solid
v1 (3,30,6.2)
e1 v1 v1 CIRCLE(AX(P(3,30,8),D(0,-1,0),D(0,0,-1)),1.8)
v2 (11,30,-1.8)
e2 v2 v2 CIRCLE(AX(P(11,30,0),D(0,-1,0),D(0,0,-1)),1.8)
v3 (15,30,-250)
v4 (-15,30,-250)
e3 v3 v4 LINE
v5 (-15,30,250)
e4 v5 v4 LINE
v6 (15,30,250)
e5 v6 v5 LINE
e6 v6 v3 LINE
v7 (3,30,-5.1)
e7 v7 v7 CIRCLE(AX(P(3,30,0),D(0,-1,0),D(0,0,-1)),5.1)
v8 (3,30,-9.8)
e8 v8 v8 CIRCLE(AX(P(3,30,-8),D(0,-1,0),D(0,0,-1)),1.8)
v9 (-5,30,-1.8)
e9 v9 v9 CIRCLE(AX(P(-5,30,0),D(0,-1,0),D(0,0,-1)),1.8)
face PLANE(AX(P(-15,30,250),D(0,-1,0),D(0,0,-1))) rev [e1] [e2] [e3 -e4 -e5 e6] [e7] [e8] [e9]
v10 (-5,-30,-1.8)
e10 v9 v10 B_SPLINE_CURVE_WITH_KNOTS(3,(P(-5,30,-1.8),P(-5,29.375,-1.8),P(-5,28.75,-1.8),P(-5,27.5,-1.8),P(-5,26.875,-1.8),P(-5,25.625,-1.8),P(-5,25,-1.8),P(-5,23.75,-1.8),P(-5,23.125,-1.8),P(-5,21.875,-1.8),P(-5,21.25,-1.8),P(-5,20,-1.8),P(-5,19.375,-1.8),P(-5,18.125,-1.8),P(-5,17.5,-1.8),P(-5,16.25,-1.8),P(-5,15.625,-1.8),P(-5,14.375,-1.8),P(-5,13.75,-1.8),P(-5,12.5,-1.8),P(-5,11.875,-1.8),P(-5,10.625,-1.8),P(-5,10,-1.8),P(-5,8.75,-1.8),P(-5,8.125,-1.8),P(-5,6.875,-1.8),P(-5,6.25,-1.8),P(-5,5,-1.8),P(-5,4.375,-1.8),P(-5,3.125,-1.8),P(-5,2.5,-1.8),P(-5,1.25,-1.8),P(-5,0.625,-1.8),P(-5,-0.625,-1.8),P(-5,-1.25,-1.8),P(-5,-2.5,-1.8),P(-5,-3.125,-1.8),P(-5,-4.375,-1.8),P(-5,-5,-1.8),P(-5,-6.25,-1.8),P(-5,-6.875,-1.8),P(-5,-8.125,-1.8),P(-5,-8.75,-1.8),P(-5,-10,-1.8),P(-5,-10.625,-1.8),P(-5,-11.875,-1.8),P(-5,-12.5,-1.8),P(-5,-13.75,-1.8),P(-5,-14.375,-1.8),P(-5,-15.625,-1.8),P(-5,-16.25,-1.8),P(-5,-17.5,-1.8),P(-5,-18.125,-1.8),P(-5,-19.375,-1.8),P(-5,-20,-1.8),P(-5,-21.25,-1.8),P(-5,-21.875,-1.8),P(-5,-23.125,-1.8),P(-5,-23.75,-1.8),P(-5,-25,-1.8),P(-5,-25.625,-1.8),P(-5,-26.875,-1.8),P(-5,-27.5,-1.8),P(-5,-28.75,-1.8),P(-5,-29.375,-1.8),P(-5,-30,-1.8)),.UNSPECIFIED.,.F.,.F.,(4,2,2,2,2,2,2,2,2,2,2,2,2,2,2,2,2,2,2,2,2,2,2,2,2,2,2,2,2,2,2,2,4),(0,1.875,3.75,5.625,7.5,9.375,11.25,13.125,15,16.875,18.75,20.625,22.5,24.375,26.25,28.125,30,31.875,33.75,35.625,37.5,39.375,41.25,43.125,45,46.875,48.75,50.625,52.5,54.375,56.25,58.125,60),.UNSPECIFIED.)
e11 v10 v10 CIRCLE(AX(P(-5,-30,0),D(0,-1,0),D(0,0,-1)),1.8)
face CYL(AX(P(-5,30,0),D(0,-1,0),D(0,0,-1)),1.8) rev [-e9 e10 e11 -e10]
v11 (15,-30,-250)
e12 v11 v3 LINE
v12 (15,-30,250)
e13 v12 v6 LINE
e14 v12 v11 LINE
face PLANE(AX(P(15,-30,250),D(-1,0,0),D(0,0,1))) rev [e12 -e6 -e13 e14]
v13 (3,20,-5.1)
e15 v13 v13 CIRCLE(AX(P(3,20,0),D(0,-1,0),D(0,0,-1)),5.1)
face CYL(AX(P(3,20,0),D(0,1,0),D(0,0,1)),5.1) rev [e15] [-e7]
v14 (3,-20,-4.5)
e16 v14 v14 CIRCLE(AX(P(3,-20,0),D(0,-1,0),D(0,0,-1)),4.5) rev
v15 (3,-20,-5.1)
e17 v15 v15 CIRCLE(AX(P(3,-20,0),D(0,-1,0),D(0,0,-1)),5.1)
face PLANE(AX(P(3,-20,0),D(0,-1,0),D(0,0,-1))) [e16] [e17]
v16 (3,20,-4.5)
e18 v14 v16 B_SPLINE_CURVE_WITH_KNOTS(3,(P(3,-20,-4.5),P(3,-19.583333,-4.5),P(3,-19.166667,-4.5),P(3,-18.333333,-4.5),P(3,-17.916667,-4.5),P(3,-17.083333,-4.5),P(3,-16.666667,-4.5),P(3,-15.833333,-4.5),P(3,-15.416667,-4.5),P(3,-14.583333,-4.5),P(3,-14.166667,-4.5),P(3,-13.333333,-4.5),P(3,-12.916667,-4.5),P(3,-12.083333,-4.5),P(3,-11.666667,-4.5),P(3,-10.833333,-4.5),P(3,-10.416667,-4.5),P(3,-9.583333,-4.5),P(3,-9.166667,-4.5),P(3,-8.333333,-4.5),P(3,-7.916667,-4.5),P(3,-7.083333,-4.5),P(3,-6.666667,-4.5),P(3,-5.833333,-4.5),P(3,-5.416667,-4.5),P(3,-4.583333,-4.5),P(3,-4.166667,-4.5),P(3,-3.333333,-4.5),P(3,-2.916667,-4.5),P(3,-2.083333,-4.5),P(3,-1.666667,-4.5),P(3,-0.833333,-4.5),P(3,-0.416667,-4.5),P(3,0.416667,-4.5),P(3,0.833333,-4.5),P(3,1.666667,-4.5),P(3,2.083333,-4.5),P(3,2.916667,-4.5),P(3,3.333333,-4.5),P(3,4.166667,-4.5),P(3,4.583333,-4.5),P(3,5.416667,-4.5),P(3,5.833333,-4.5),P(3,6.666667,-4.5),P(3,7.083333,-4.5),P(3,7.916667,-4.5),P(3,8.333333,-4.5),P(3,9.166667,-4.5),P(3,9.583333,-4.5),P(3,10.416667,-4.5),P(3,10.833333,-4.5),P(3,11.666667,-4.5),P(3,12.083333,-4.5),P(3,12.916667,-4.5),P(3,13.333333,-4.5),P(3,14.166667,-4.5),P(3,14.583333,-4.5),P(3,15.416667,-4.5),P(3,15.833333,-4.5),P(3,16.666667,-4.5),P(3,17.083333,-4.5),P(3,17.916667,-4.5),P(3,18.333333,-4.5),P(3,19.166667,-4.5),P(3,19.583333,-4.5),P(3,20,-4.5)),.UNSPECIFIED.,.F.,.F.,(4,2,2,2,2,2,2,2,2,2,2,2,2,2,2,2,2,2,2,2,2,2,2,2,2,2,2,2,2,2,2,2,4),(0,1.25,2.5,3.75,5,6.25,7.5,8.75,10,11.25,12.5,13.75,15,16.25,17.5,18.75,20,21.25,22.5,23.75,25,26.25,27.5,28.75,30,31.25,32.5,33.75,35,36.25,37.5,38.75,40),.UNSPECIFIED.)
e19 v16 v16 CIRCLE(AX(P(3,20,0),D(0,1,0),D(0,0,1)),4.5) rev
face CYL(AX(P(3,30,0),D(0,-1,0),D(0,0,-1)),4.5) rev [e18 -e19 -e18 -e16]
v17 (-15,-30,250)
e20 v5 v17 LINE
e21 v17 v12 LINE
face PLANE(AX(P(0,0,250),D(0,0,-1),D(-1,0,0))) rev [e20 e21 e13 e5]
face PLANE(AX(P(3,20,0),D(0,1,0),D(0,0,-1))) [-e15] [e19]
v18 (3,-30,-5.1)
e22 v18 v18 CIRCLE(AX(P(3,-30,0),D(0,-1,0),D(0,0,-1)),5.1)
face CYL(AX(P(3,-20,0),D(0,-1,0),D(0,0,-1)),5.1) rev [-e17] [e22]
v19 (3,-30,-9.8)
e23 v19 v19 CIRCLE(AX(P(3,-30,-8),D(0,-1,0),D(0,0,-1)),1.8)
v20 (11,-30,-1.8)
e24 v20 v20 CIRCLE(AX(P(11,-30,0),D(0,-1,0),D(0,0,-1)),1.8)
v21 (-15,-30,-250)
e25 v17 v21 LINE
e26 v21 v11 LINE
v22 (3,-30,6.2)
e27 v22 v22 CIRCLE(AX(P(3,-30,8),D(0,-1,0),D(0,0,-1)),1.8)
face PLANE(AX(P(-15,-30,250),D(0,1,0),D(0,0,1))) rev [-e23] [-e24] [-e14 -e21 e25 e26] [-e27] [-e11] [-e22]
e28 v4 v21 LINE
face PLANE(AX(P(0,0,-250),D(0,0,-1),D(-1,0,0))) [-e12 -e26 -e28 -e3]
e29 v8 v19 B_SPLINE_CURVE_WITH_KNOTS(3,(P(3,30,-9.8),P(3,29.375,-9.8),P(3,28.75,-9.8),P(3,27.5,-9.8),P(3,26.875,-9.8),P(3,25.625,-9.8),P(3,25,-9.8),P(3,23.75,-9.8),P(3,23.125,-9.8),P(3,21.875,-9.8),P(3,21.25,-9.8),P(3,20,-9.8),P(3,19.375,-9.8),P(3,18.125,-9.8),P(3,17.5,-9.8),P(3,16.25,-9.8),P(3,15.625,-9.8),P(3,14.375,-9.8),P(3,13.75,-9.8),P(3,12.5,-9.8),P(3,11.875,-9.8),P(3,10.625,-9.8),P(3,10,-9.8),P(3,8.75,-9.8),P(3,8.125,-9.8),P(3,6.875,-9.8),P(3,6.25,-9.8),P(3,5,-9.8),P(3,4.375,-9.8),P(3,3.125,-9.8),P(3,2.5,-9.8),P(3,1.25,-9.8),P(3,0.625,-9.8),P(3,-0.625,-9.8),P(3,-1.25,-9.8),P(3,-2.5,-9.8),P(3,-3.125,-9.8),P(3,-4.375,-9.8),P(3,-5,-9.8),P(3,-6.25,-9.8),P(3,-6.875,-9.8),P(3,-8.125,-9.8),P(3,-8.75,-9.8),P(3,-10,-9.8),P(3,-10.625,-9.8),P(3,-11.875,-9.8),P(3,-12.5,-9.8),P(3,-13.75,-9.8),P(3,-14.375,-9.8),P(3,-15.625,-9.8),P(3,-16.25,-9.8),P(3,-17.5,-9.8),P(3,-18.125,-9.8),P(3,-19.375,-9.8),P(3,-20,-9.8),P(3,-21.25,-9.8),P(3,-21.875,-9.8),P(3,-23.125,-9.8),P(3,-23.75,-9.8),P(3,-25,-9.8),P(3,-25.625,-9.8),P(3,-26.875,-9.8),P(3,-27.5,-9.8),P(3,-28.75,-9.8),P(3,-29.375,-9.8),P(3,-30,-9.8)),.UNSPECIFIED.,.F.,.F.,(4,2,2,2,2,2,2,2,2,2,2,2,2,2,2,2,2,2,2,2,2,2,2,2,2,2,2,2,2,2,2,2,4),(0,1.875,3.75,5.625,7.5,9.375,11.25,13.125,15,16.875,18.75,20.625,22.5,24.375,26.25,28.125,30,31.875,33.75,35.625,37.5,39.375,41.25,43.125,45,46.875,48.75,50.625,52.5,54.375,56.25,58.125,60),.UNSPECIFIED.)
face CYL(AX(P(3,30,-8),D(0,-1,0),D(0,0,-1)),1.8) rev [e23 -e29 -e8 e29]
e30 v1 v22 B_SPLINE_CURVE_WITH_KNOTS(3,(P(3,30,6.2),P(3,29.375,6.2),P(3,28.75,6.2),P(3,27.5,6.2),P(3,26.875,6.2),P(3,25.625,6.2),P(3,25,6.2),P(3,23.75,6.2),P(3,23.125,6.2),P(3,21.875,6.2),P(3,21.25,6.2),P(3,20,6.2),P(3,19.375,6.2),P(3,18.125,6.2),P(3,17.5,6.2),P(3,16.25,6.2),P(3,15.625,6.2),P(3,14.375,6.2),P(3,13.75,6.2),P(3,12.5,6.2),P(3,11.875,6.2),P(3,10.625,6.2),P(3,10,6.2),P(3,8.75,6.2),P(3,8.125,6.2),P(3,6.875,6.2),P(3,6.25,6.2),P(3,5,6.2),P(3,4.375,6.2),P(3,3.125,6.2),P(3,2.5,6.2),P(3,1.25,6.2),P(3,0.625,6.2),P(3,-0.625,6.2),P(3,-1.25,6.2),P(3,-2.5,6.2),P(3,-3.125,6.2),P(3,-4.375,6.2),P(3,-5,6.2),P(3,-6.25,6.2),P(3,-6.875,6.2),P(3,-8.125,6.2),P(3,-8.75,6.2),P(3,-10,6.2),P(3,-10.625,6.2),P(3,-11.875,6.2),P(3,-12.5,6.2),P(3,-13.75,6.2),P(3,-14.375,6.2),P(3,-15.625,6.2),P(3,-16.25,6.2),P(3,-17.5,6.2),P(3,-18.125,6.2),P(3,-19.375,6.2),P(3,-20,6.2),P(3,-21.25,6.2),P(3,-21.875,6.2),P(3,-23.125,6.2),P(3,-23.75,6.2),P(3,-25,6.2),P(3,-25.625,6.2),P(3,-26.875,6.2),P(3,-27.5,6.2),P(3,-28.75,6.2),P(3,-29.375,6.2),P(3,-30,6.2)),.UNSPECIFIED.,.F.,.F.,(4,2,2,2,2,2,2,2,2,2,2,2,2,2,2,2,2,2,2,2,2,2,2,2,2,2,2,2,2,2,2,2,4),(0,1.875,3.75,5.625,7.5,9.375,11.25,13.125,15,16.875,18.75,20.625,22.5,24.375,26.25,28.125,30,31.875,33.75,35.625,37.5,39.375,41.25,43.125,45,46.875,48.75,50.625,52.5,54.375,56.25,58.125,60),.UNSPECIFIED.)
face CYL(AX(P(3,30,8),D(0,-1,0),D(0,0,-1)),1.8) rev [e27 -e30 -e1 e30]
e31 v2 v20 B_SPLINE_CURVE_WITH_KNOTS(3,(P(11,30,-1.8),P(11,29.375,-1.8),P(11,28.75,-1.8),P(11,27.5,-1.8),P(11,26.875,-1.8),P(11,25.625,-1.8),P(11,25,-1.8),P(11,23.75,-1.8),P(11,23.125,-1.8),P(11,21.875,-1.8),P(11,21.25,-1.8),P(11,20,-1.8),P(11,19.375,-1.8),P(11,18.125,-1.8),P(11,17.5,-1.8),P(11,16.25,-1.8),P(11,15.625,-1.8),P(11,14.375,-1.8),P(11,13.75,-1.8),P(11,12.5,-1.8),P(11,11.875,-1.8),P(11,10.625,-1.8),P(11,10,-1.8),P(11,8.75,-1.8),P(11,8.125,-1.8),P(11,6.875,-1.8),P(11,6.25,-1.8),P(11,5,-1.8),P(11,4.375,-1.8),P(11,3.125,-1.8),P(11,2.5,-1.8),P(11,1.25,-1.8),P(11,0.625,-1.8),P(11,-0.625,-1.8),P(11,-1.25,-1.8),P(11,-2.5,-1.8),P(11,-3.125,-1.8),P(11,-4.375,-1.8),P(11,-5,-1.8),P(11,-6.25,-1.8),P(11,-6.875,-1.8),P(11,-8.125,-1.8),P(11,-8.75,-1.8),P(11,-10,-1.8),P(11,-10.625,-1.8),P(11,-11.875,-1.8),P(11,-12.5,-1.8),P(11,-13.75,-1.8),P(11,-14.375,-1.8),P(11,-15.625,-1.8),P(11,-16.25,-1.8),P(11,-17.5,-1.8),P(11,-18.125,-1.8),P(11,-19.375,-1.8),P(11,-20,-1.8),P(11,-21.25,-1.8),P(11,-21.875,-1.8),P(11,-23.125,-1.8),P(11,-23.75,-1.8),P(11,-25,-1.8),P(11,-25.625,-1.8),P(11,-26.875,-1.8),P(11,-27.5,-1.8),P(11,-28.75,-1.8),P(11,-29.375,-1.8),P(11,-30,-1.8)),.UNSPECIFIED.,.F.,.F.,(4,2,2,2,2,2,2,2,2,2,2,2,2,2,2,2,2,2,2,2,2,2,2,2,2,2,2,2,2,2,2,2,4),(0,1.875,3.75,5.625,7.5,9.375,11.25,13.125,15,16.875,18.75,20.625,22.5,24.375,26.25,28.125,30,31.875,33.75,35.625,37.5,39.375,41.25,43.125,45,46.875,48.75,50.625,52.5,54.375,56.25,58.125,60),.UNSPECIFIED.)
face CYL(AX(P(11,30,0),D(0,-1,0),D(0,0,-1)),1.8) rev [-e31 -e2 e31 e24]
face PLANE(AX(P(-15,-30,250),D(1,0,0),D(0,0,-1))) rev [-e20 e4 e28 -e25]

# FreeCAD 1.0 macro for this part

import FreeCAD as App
import Part
import Sketcher

V = App.Vector
Q = App.Units.Quantity

doc = App.newDocument("Part")
body = doc.addObject("PartDesign::Body", "Body")

# Sketch on XY plane
sketch1 = body.newObject("Sketcher::SketchObject", "Sketch")
sketch1.AttachmentSupport = (doc.getObject("XY_Plane"), [""])
sketch1.MapMode = "FlatFace"
sketch1.addGeometry([
    Part.LineSegment(V(-15, 30, 0), V(-15, -30, 0)),
    Part.LineSegment(V(-15, -30, 0), V(15, -30, 0)),
    Part.LineSegment(V(15, -30, 0), V(15, 30, 0)),
    Part.LineSegment(V(15, 30, 0), V(-15, 30, 0)),
], False)
sketch1.addConstraint([
    Sketcher.Constraint("Coincident", 0, 2, 1, 1),
    Sketcher.Constraint("Coincident", 1, 2, 2, 1),
    Sketcher.Constraint("Coincident", 2, 2, 3, 1),
    Sketcher.Constraint("Coincident", 3, 2, 0, 1),
    Sketcher.Constraint("Vertical", 0),
    Sketcher.Constraint("Horizontal", 1),
    Sketcher.Constraint("Vertical", 2),
    Sketcher.Constraint("Horizontal", 3),
    Sketcher.Constraint("Symmetric", 0, 2, 2, 2, -1, 1),
    Sketcher.Constraint("DistanceX", 1, 1, 1, 2, Q("30 mm")),
    Sketcher.Constraint("DistanceY", 0, 2, 0, 1, Q("60 mm")),
])
pad1 = body.newObject("PartDesign::Pad", "Pad")
pad1.Profile = sketch1
pad1.Length = 500
pad1.Midplane = True

# Sketch on XZ plane
sketch2 = body.newObject("Sketcher::SketchObject", "Sketch001")
sketch2.AttachmentSupport = (doc.getObject("XZ_Plane"), [""])
sketch2.MapMode = "FlatFace"
sketch2.AttachmentOffset = App.Placement(V(0, 0, 30), App.Rotation())
sketch2.addGeometry([
    Part.Circle(V(3, 0, 0), V(0, 0, 1), 4.5),  # 0
    Part.Circle(V(11, 0, 0), V(0, 0, 1), 1.8),  # 1
    Part.Circle(V(3, -8, 0), V(0, 0, 1), 1.8),  # 2
    Part.Circle(V(-5, 0, 0), V(0, 0, 1), 1.8),  # 3
    Part.Circle(V(3, 8, 0), V(0, 0, 1), 1.8),  # 4
], False)
sketch2.addConstraint([
    Sketcher.Constraint("Equal", 1, 2),
    Sketcher.Constraint("Equal", 2, 3),
    Sketcher.Constraint("Equal", 3, 4),
    Sketcher.Constraint("Symmetric", 2, 3, 4, 3, -1),
    Sketcher.Constraint("PointOnObject", 0, 3, -1),
    Sketcher.Constraint("PointOnObject", 1, 3, -1),
    Sketcher.Constraint("PointOnObject", 3, 3, -1),
    Sketcher.Constraint("Vertical", 0, 3, 2, 3),
    Sketcher.Constraint("Diameter", 0, Q("9 mm")),
    Sketcher.Constraint("Diameter", 1, Q("3.6 mm")),
    Sketcher.Constraint("DistanceX", -1, 1, 0, 3, Q("3 mm")),
    Sketcher.Constraint("DistanceX", -1, 1, 1, 3, Q("11 mm")),
    Sketcher.Constraint("DistanceY", 2, 3, -1, 1, Q("8 mm")),
    Sketcher.Constraint("DistanceX", 3, 3, -1, 1, Q("5 mm")),
])
pocket1 = body.newObject("PartDesign::Pocket", "Pocket")
pocket1.Profile = sketch2
pocket1.Type = "ThroughAll"

# Sketch on XZ plane
sketch3 = body.newObject("Sketcher::SketchObject", "Sketch002")
sketch3.AttachmentSupport = (doc.getObject("XZ_Plane"), [""])
sketch3.MapMode = "FlatFace"
sketch3.AttachmentOffset = App.Placement(V(0, 0, 30), App.Rotation())
sketch3.addGeometry(Part.Circle(V(3, 0, 0), V(0, 0, 1), 5), False)
sketch3.addConstraint([
    Sketcher.Constraint("PointOnObject", 0, 3, -1),
    Sketcher.Constraint("Diameter", 0, Q("10.2 mm")),
    Sketcher.Constraint("DistanceX", -1, 1, 0, 3, Q("3 mm")),
])
pocket2 = body.newObject("PartDesign::Pocket", "Pocket001")
pocket2.Profile = sketch3
pocket2.Length = 10
doc.recompute()

mirrored = body.newObject("PartDesign::Mirrored", "Mirrored")
mirrored.Originals = [pocket2]
mirrored.MirrorPlane = (doc.getObject("XZ_Plane"), [""])
body.Tip = mirrored

doc.recompute()
